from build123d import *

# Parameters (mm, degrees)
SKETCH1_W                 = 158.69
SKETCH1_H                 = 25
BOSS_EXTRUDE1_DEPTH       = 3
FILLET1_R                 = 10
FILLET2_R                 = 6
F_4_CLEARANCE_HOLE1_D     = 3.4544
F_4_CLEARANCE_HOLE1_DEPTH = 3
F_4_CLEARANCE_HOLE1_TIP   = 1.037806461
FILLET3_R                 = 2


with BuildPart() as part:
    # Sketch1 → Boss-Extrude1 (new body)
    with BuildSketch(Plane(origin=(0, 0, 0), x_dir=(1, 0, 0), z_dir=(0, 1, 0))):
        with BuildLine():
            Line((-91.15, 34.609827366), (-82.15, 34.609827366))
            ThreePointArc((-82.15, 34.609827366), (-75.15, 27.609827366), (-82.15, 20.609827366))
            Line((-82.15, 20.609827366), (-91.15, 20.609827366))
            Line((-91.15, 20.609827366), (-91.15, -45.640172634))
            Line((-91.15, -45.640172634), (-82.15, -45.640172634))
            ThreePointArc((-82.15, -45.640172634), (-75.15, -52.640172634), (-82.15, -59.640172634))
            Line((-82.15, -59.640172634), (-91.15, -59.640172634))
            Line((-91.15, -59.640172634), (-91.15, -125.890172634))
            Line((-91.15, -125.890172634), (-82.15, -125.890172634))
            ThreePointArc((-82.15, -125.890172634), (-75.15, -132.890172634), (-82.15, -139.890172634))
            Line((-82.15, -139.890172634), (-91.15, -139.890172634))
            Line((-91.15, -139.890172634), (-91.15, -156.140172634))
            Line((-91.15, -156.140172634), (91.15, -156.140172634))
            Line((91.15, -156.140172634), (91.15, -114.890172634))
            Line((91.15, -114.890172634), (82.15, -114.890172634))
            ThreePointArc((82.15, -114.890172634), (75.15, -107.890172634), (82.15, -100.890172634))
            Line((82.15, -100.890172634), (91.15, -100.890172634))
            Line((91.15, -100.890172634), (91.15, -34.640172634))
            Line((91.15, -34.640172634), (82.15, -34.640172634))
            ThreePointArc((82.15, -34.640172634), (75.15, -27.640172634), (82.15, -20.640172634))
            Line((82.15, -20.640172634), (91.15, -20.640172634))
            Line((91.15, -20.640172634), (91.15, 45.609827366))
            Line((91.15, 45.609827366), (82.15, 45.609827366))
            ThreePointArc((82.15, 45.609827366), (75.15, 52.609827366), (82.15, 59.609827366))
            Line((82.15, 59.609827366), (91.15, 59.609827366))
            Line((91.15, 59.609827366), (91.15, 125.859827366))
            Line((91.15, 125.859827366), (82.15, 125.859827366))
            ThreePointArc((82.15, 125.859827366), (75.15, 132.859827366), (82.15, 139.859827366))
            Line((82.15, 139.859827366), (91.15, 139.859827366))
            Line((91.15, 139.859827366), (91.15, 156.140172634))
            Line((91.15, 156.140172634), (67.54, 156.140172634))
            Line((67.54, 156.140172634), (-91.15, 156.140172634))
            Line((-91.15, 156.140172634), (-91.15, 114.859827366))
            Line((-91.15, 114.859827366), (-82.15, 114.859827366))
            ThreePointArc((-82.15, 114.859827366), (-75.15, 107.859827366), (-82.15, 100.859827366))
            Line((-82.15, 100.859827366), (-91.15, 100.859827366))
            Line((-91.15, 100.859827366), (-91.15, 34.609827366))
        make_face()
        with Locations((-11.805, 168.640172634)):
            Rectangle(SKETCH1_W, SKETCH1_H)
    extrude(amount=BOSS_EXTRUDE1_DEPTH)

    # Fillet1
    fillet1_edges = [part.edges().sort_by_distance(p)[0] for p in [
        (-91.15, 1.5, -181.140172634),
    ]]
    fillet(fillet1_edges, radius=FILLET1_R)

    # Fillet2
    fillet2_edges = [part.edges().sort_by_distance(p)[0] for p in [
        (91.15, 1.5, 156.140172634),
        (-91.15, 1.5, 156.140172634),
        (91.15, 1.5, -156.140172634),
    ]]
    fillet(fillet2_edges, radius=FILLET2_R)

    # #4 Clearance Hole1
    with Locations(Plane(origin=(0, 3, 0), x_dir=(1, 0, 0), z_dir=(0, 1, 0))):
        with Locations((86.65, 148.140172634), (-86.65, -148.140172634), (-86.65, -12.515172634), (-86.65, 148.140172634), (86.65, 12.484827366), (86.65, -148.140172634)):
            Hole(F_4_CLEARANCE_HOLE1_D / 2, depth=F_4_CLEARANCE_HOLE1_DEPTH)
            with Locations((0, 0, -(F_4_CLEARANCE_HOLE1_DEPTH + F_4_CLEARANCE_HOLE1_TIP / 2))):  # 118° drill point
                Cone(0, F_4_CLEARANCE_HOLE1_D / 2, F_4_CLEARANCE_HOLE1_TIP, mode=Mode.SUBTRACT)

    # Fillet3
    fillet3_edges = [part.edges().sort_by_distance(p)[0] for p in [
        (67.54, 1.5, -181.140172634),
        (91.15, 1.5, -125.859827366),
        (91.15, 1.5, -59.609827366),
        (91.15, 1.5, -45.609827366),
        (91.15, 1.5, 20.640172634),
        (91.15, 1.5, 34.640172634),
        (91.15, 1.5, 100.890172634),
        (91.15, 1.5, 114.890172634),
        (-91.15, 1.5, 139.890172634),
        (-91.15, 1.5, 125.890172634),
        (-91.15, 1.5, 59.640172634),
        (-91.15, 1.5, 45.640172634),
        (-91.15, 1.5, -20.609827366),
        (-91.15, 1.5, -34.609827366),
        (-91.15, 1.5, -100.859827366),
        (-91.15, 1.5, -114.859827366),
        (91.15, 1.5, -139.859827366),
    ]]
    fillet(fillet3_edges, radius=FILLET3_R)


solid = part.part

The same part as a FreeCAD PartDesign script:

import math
import FreeCAD as App
import Part
import Sketcher
from FreeCAD import Vector
Q = App.Units.Quantity


def edges_at(feature, points):
    """Names of the edges that pass closest to the given points."""
    edges = feature.Shape.Edges
    near = lambda p: min(range(len(edges)), key=lambda i: edges[i].distToShape(Part.Vertex(*p))[0])
    return sorted({f"Edge{near(p) + 1}" for p in points})

doc = App.newDocument("Part")
body = doc.addObject("PartDesign::Body", "Body")

# Sketch on XZ plane
sketch1 = body.newObject("Sketcher::SketchObject", "Sketch")
sketch1.AttachmentSupport = (doc.getObject("XZ_Plane"), [""])
sketch1.MapMode = "FlatFace"
sketch1.addGeometry([
    Part.LineSegment(Vector(-91, -35, 0), Vector(-82, -35, 0)),  # 0
    Part.ArcOfCircle(Part.Circle(Vector(-82, -28, 0), Vector(0, 0, 1), 7), math.radians(-90), math.radians(90)),  # 1
    Part.LineSegment(Vector(-82, -21, 0), Vector(-91, -21, 0)),  # 2
    Part.LineSegment(Vector(-91, -21, 0), Vector(-91, 46, 0)),  # 3
    Part.LineSegment(Vector(-91, 46, 0), Vector(-82, 46, 0)),  # 4
    Part.ArcOfCircle(Part.Circle(Vector(-82, 53, 0), Vector(0, 0, 1), 7), math.radians(-90), math.radians(90)),  # 5
    Part.LineSegment(Vector(-82, 60, 0), Vector(-91, 60, 0)),  # 6
    Part.LineSegment(Vector(-91, 60, 0), Vector(-91, 126, 0)),  # 7
    Part.LineSegment(Vector(-91, 126, 0), Vector(-82, 126, 0)),  # 8
    Part.ArcOfCircle(Part.Circle(Vector(-82, 133, 0), Vector(0, 0, 1), 7), math.radians(-90), math.radians(90)),  # 9
    Part.LineSegment(Vector(-82, 140, 0), Vector(-91, 140, 0)),  # 10
    Part.LineSegment(Vector(-91, 140, 0), Vector(-91, 156, 0)),  # 11
    Part.LineSegment(Vector(-91, 156, 0), Vector(91, 156, 0)),  # 12
    Part.LineSegment(Vector(91, 156, 0), Vector(91, 115, 0)),  # 13
    Part.LineSegment(Vector(91, 115, 0), Vector(82, 115, 0)),  # 14
    Part.ArcOfCircle(Part.Circle(Vector(82, 108, 0), Vector(0, 0, 1), 7), math.radians(90), math.radians(270)),  # 15
    Part.LineSegment(Vector(82, 101, 0), Vector(91, 101, 0)),  # 16
    Part.LineSegment(Vector(91, 101, 0), Vector(91, 35, 0)),  # 17
    Part.LineSegment(Vector(91, 35, 0), Vector(82, 35, 0)),  # 18
    Part.ArcOfCircle(Part.Circle(Vector(82, 28, 0), Vector(0, 0, 1), 7), math.radians(90), math.radians(270)),  # 19
    Part.LineSegment(Vector(82, 21, 0), Vector(91, 21, 0)),  # 20
    Part.LineSegment(Vector(91, 21, 0), Vector(91, -46, 0)),  # 21
    Part.LineSegment(Vector(91, -46, 0), Vector(82, -46, 0)),  # 22
    Part.ArcOfCircle(Part.Circle(Vector(82, -53, 0), Vector(0, 0, 1), 7), math.radians(90), math.radians(270)),  # 23
    Part.LineSegment(Vector(82, -60, 0), Vector(91, -60, 0)),  # 24
    Part.LineSegment(Vector(91, -60, 0), Vector(91, -126, 0)),  # 25
    Part.LineSegment(Vector(91, -126, 0), Vector(82, -126, 0)),  # 26
    Part.ArcOfCircle(Part.Circle(Vector(82, -133, 0), Vector(0, 0, 1), 7), math.radians(90), math.radians(270)),  # 27
    Part.LineSegment(Vector(82, -140, 0), Vector(91, -140, 0)),  # 28
    Part.LineSegment(Vector(91, -140, 0), Vector(91, -156, 0)),  # 29
    Part.LineSegment(Vector(91, -156, 0), Vector(68, -156, 0)),  # 30
    Part.LineSegment(Vector(68, -156, 0), Vector(68, -181, 0)),  # 31
    Part.LineSegment(Vector(68, -181, 0), Vector(-91, -181, 0)),  # 32
    Part.LineSegment(Vector(-91, -181, 0), Vector(-91, -115, 0)),  # 33
    Part.LineSegment(Vector(-91, -115, 0), Vector(-82, -115, 0)),  # 34
    Part.ArcOfCircle(Part.Circle(Vector(-82, -108, 0), Vector(0, 0, 1), 7), math.radians(-90), math.radians(90)),  # 35
    Part.LineSegment(Vector(-82, -101, 0), Vector(-91, -101, 0)),  # 36
    Part.LineSegment(Vector(-91, -101, 0), Vector(-91, -35, 0)),  # 37
], False)
sketch1.addConstraint([
    Sketcher.Constraint("Tangent", 0, 2, 1, 1),
    Sketcher.Constraint("Tangent", 1, 2, 2, 1),
    Sketcher.Constraint("Coincident", 2, 2, 3, 1),
    Sketcher.Constraint("Coincident", 3, 2, 4, 1),
    Sketcher.Constraint("Tangent", 4, 2, 5, 1),
    Sketcher.Constraint("Tangent", 5, 2, 6, 1),
    Sketcher.Constraint("Coincident", 6, 2, 7, 1),
    Sketcher.Constraint("Coincident", 7, 2, 8, 1),
    Sketcher.Constraint("Tangent", 8, 2, 9, 1),
    Sketcher.Constraint("Tangent", 9, 2, 10, 1),
    Sketcher.Constraint("Coincident", 10, 2, 11, 1),
    Sketcher.Constraint("Coincident", 11, 2, 12, 1),
    Sketcher.Constraint("Coincident", 12, 2, 13, 1),
    Sketcher.Constraint("Coincident", 13, 2, 14, 1),
    Sketcher.Constraint("Tangent", 14, 2, 15, 1),
    Sketcher.Constraint("Tangent", 15, 2, 16, 1),
    Sketcher.Constraint("Coincident", 16, 2, 17, 1),
    Sketcher.Constraint("Coincident", 17, 2, 18, 1),
    Sketcher.Constraint("Tangent", 18, 2, 19, 1),
    Sketcher.Constraint("Tangent", 19, 2, 20, 1),
    Sketcher.Constraint("Coincident", 20, 2, 21, 1),
    Sketcher.Constraint("Coincident", 21, 2, 22, 1),
    Sketcher.Constraint("Tangent", 22, 2, 23, 1),
    Sketcher.Constraint("Tangent", 23, 2, 24, 1),
    Sketcher.Constraint("Coincident", 24, 2, 25, 1),
    Sketcher.Constraint("Coincident", 25, 2, 26, 1),
    Sketcher.Constraint("Tangent", 26, 2, 27, 1),
    Sketcher.Constraint("Tangent", 27, 2, 28, 1),
    Sketcher.Constraint("Coincident", 28, 2, 29, 1),
    Sketcher.Constraint("Coincident", 29, 2, 30, 1),
    Sketcher.Constraint("Coincident", 30, 2, 31, 1),
    Sketcher.Constraint("Coincident", 31, 2, 32, 1),
    Sketcher.Constraint("Coincident", 32, 2, 33, 1),
    Sketcher.Constraint("Coincident", 33, 2, 34, 1),
    Sketcher.Constraint("Tangent", 34, 2, 35, 1),
    Sketcher.Constraint("Tangent", 35, 2, 36, 1),
    Sketcher.Constraint("Coincident", 36, 2, 37, 1),
    Sketcher.Constraint("Coincident", 37, 2, 0, 1),
    Sketcher.Constraint("Horizontal", 0),
    Sketcher.Constraint("Horizontal", 2),
    Sketcher.Constraint("Vertical", 3),
    Sketcher.Constraint("Horizontal", 4),
    Sketcher.Constraint("Horizontal", 6),
    Sketcher.Constraint("Vertical", 7),
    Sketcher.Constraint("Horizontal", 8),
    Sketcher.Constraint("Horizontal", 10),
    Sketcher.Constraint("Vertical", 11),
    Sketcher.Constraint("Horizontal", 12),
    Sketcher.Constraint("Vertical", 13),
    Sketcher.Constraint("Horizontal", 14),
    Sketcher.Constraint("Horizontal", 16),
    Sketcher.Constraint("Vertical", 17),
    Sketcher.Constraint("Horizontal", 18),
    Sketcher.Constraint("Horizontal", 20),
    Sketcher.Constraint("Vertical", 21),
    Sketcher.Constraint("Horizontal", 22),
    Sketcher.Constraint("Horizontal", 24),
    Sketcher.Constraint("Vertical", 25),
    Sketcher.Constraint("Horizontal", 26),
    Sketcher.Constraint("Horizontal", 28),
    Sketcher.Constraint("Vertical", 29),
    Sketcher.Constraint("Horizontal", 30),
    Sketcher.Constraint("Vertical", 31),
    Sketcher.Constraint("Horizontal", 32),
    Sketcher.Constraint("Vertical", 33),
    Sketcher.Constraint("Horizontal", 34),
    Sketcher.Constraint("Horizontal", 36),
    Sketcher.Constraint("Vertical", 37),
    Sketcher.Constraint("Equal", 1, 5),
    Sketcher.Constraint("Equal", 5, 9),
    Sketcher.Constraint("Equal", 9, 15),
    Sketcher.Constraint("Equal", 15, 19),
    Sketcher.Constraint("Equal", 19, 23),
    Sketcher.Constraint("Equal", 23, 27),
    Sketcher.Constraint("Equal", 27, 35),
    Sketcher.Constraint("Symmetric", 11, 2, 29, 2, -1, 1),
    Sketcher.Constraint("Vertical", 1, 3, 5, 3),
    Sketcher.Constraint("Vertical", 5, 3, 9, 3),
    Sketcher.Constraint("Vertical", 15, 3, 19, 3),
    Sketcher.Constraint("Vertical", 19, 3, 23, 3),
    Sketcher.Constraint("Vertical", 23, 3, 27, 3),
    Sketcher.Constraint("Vertical", 9, 3, 35, 3),
    Sketcher.Constraint("Vertical", 3, 2, 6, 2),
    Sketcher.Constraint("Vertical", 7, 2, 10, 2),
    Sketcher.Constraint("Vertical", 13, 2, 16, 2),
    Sketcher.Constraint("Vertical", 17, 2, 20, 2),
    Sketcher.Constraint("Vertical", 21, 2, 24, 2),
    Sketcher.Constraint("Vertical", 25, 2, 28, 2),
    Sketcher.Constraint("Vertical", 11, 2, 32, 2),
    Sketcher.Constraint("Vertical", 33, 2, 36, 2),
    Sketcher.Constraint("Equal", 10, 14),
    Sketcher.Constraint("Equal", 3, 7),
    Sketcher.Constraint("Equal", 7, 17),
    Sketcher.Constraint("Equal", 17, 21),
    Sketcher.Constraint("Equal", 21, 25),
    Sketcher.Constraint("Equal", 25, 37),
    Sketcher.Constraint("Radius", 1, Q("7 mm")),
    Sketcher.Constraint("DistanceX", 0, 1, 0, 2, Q("9 mm")),
    Sketcher.Constraint("DistanceY", 31, 2, 31, 1, Q("25 mm")),
    Sketcher.Constraint("DistanceX", 12, 1, 12, 2, Q("182.3 mm")),
    Sketcher.Constraint("DistanceY", 15, 3, 9, 3, Q("25 mm")),
    Sketcher.Constraint("DistanceX", 30, 2, 30, 1, Q("23.61 mm")),
    Sketcher.Constraint("DistanceY", 3, 1, 3, 2, Q("66.25 mm")),
    Sketcher.Constraint("DistanceY", 11, 1, 11, 2, Q("16.25 mm")),
    Sketcher.Constraint("DistanceY", 29, 2, 29, 1, Q("16.280345 mm")),
])
pad1 = body.newObject("PartDesign::Pad", "Pad")
pad1.Profile = sketch1
pad1.Length = 3
pad1.Reversed = True
doc.recompute()

fillet = body.newObject("PartDesign::Fillet", "Fillet")
fillet.Base = (pad1, edges_at(pad1, [(-91.15, 1.5, -181.14)]))
fillet.Radius = 10
doc.recompute()

fillet2 = body.newObject("PartDesign::Fillet", "Fillet001")
fillet2.Base = (fillet, edges_at(fillet, [(91.15, 1.5, 156.14), (-91.15, 1.5, 156.14), (91.15, 1.5, -156.14)]))
fillet2.Radius = 6

# Sketch on XZ plane
sketch2 = body.newObject("Sketcher::SketchObject", "Sketch001")
sketch2.AttachmentSupport = (doc.getObject("XZ_Plane"), [""])
sketch2.MapMode = "FlatFace"
sketch2.AttachmentOffset = App.Placement(Vector(0, 0, -3), App.Rotation())
sketch2.addGeometry([
    Part.Circle(Vector(86.7, -148.1, 0), Vector(0, 0, 1), 1.7),  # 0
    Part.Circle(Vector(-86.7, 148.1, 0), Vector(0, 0, 1), 1.7),  # 1
    Part.Circle(Vector(-86.7, 12.5, 0), Vector(0, 0, 1), 1.7),  # 2
    Part.Circle(Vector(-86.7, -148.1, 0), Vector(0, 0, 1), 1.7),  # 3
    Part.Circle(Vector(86.7, -12.5, 0), Vector(0, 0, 1), 1.7),  # 4
    Part.Circle(Vector(86.7, 148.1, 0), Vector(0, 0, 1), 1.7),  # 5
], False)
sketch2.addConstraint([
    Sketcher.Constraint("Equal", 0, 1),
    Sketcher.Constraint("Equal", 1, 2),
    Sketcher.Constraint("Equal", 2, 3),
    Sketcher.Constraint("Equal", 3, 4),
    Sketcher.Constraint("Equal", 4, 5),
    Sketcher.Constraint("Symmetric", 0, 3, 1, 3, -1, 1),
    Sketcher.Constraint("Symmetric", 3, 3, 5, 3, -1, 1),
    Sketcher.Constraint("Symmetric", 0, 3, 3, 3, -2),
    Sketcher.Constraint("Vertical", 1, 3, 2, 3),
    Sketcher.Constraint("Vertical", 0, 3, 4, 3),
    Sketcher.Constraint("DistanceY", 4, 3, 2, 3, Q("25 mm")),
    Sketcher.Constraint("Diameter", 0, Q("3.4544 mm")),
    Sketcher.Constraint("DistanceX", 1, 3, 0, 3, Q("173.3 mm")),
    Sketcher.Constraint("DistanceY", 2, 3, 1, 3, Q("135.625 mm")),
    Sketcher.Constraint("DistanceY", 0, 3, -1, 1, Q("148.140173 mm")),
])
doc.recompute()
hole = body.newObject("PartDesign::Hole", "Hole")
hole.Profile = sketch2
hole.ThreadType = "None"
hole.Diameter = 3.4544
hole.DepthType = "Dimension"
hole.Depth = 3
hole.DrillPoint = "Angled"
hole.DrillPointAngle = 118
hole.Reversed = True
doc.recompute()

fillet3 = body.newObject("PartDesign::Fillet", "Fillet002")
fillet3.Base = (hole, edges_at(hole, [
    (67.54, 1.5, -181.14),
    (91.15, 1.5, -125.86),
    (91.15, 1.5, -59.61),
    (91.15, 1.5, -45.61),
    (91.15, 1.5, 20.64),
    (91.15, 1.5, 34.64),
    (91.15, 1.5, 100.89),
    (91.15, 1.5, 114.89),
    (-91.15, 1.5, 139.89),
    (-91.15, 1.5, 125.89),
    (-91.15, 1.5, 59.64),
    (-91.15, 1.5, 45.64),
    (-91.15, 1.5, -20.61),
    (-91.15, 1.5, -34.61),
    (-91.15, 1.5, -100.86),
    (-91.15, 1.5, -114.86),
    (91.15, 1.5, -139.86),
]))
fillet3.Radius = 2

doc.recompute()
